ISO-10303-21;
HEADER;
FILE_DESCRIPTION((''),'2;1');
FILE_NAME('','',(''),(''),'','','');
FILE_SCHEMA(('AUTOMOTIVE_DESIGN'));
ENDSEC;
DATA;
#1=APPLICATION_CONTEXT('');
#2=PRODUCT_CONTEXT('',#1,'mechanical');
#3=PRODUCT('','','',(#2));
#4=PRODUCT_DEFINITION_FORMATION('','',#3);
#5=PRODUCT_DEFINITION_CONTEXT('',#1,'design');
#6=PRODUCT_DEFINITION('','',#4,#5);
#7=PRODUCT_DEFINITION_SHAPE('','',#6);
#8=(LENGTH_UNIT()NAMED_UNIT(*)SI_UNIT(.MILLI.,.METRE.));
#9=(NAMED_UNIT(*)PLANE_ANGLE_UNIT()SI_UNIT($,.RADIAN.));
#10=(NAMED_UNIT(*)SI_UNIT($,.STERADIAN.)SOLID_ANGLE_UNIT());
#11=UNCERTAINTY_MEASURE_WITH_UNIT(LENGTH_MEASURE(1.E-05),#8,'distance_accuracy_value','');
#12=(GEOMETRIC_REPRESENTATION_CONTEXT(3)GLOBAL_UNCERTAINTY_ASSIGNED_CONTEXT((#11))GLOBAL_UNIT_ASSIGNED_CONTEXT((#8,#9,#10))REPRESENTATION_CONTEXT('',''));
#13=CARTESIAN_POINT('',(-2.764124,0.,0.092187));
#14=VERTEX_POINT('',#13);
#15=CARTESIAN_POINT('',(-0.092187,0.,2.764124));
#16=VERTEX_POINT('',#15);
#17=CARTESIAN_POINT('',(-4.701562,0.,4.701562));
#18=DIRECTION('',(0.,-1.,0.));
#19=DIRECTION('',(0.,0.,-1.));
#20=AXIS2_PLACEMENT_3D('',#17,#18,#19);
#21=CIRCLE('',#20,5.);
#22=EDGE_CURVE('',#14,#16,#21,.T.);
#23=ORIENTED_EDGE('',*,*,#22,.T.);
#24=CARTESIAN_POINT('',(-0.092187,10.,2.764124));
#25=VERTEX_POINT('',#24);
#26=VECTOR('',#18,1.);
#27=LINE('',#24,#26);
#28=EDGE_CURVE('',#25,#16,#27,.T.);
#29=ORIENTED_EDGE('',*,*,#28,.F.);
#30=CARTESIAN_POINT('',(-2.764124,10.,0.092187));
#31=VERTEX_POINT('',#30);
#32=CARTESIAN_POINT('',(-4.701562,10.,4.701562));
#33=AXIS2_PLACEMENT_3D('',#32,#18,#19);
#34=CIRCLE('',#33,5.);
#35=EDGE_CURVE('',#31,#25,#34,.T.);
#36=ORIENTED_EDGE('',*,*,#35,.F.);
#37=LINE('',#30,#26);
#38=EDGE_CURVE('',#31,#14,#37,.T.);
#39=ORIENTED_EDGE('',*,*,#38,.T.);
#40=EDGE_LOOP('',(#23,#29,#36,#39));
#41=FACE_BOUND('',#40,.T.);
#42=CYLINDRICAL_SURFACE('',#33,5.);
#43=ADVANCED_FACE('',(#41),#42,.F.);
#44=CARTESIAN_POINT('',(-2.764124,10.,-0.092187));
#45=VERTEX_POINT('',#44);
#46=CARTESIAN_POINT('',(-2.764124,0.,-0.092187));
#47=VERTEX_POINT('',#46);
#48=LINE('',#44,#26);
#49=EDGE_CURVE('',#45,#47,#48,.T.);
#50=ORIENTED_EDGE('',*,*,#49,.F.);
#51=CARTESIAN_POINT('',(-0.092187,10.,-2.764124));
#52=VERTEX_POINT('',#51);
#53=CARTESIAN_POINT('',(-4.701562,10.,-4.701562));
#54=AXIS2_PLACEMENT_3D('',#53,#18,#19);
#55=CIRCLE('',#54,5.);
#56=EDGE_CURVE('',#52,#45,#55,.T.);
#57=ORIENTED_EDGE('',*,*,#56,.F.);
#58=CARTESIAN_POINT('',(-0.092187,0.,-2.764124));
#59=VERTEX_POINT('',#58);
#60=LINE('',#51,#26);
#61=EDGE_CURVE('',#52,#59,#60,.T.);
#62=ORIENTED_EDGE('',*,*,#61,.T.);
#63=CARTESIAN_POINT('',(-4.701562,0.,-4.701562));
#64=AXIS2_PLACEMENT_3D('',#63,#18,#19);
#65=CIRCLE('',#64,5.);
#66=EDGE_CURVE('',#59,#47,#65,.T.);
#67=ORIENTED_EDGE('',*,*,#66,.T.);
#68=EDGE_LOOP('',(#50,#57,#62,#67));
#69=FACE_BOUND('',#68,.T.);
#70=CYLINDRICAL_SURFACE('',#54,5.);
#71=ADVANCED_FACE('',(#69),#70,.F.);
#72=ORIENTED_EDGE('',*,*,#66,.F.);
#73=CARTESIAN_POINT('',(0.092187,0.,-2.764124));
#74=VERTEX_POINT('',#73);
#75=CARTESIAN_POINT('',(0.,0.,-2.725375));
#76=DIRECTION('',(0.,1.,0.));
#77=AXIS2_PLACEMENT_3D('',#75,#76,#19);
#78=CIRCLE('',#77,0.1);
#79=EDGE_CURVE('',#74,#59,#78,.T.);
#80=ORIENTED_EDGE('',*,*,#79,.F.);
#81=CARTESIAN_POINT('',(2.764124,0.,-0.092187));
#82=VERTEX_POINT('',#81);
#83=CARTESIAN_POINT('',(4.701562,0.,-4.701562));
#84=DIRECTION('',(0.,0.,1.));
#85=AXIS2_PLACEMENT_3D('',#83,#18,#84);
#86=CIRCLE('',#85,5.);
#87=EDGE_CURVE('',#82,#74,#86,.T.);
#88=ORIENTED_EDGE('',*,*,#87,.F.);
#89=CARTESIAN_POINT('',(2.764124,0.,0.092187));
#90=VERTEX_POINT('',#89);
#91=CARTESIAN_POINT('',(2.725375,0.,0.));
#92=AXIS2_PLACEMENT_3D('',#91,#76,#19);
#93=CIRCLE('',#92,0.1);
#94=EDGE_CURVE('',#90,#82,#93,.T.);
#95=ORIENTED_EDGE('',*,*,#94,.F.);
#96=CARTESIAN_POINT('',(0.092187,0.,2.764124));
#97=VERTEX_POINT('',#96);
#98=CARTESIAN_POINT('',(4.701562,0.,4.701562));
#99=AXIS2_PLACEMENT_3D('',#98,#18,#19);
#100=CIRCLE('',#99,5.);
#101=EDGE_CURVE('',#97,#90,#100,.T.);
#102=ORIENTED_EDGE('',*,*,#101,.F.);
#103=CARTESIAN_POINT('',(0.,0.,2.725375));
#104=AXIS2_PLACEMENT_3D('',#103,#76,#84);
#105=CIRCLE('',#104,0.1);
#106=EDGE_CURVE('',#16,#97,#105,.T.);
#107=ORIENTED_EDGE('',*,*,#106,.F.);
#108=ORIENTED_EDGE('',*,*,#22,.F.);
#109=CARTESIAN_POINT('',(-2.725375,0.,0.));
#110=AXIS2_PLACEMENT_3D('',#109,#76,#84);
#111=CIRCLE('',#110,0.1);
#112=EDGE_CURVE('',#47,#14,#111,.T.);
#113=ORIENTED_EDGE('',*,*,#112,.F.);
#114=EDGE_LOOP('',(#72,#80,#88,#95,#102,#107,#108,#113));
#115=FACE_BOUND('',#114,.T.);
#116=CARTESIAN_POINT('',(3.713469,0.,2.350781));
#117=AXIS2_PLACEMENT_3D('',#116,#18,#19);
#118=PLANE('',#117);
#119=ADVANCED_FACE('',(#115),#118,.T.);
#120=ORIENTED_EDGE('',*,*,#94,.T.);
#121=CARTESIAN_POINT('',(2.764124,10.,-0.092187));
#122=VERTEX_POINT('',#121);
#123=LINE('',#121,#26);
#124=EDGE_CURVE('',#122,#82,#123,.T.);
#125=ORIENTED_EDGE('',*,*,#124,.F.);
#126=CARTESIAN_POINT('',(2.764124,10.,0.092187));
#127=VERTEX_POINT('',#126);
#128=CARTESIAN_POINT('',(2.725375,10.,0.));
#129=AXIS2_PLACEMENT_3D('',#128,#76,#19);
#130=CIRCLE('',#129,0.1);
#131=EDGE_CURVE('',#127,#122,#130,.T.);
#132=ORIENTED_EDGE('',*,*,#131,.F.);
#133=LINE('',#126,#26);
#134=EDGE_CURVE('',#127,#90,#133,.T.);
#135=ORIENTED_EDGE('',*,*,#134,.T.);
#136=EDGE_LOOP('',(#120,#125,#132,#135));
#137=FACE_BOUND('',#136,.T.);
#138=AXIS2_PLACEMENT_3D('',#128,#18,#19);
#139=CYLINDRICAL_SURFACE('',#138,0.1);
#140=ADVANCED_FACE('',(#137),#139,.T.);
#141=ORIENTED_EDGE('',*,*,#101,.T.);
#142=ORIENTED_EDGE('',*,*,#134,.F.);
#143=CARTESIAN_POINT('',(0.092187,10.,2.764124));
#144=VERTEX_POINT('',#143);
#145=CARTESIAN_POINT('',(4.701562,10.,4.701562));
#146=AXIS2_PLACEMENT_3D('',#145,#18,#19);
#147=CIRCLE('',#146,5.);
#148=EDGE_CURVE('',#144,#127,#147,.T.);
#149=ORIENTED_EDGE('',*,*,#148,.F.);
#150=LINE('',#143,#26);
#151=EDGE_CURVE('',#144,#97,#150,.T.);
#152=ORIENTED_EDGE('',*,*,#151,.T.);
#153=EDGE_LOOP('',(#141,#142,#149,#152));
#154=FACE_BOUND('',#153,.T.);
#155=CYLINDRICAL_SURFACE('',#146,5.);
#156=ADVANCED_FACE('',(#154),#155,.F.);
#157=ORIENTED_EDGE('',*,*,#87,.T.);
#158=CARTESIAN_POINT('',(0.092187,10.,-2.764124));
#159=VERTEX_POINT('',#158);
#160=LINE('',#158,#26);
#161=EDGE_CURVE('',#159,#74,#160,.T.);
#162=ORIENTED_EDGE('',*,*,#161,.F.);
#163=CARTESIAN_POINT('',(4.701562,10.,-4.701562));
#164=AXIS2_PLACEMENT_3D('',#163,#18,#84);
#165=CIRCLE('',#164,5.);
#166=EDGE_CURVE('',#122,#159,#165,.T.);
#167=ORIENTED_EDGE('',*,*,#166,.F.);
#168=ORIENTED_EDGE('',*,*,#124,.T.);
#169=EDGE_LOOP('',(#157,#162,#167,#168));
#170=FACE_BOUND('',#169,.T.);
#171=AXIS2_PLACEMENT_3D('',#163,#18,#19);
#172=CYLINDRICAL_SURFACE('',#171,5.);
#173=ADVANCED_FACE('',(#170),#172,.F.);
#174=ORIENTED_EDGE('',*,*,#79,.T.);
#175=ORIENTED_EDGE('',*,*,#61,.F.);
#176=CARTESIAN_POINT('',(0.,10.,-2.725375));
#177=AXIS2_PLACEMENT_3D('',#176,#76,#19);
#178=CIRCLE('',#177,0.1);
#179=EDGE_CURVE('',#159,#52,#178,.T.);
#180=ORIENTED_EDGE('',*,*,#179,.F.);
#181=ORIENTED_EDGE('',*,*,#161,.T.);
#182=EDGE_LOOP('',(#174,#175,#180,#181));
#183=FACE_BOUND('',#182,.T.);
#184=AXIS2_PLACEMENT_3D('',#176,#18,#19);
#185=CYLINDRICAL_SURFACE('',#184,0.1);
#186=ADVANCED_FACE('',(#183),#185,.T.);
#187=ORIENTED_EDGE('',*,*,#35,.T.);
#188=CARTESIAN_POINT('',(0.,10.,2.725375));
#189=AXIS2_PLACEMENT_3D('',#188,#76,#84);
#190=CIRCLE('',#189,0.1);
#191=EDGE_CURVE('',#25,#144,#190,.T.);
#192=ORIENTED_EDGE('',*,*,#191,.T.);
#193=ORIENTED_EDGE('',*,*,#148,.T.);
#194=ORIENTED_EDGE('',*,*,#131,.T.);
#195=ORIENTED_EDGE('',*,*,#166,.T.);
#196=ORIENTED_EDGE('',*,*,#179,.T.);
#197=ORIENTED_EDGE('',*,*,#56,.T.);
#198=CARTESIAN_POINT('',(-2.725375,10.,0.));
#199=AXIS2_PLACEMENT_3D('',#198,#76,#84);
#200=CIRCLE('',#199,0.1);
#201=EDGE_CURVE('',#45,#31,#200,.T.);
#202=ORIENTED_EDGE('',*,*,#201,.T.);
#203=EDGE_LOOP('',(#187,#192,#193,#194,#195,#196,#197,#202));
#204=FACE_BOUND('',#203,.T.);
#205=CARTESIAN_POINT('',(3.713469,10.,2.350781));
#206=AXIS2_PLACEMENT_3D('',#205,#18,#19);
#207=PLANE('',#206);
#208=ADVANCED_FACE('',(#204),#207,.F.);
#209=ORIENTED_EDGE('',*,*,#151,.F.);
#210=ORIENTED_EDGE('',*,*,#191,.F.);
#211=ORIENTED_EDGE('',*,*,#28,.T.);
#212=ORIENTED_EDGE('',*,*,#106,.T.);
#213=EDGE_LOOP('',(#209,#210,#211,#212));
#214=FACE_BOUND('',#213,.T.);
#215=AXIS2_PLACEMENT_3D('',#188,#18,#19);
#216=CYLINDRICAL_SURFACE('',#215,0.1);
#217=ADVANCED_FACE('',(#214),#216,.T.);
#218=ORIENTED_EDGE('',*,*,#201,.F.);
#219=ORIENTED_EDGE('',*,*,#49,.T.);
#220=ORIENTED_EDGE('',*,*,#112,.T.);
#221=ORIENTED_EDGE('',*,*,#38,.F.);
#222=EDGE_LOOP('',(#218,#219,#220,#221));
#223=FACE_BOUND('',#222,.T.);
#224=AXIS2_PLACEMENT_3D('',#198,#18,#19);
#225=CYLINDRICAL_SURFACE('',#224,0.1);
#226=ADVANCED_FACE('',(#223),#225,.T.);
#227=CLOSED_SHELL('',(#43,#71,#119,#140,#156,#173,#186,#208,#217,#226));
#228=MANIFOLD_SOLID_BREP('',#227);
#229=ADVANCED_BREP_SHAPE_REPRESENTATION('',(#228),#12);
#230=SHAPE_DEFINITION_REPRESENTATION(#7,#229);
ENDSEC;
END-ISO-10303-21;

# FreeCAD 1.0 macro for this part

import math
import FreeCAD as App
import Part
import Sketcher
from FreeCAD import Vector

doc = App.newDocument("Part")
body = doc.addObject("PartDesign::Body", "Body")

sketch1 = doc.addObject("Sketcher::SketchObject", "Sketch")
body.addObject(sketch1)
sketch1.AttachmentSupport = (doc.XZ_Plane, [""])
sketch1.MapMode = "FlatFace"
sketch1.addGeometry([
    Part.ArcOfCircle(Part.Circle(Vector(-4.7, -4.7, 0), Vector(0, 0, 1), 5), math.radians(23), math.radians(67)),
    Part.ArcOfCircle(Part.Circle(Vector(-2.73, 0, 0), Vector(0, 0, 1), 0.1), math.radians(113), math.radians(247)),
    Part.ArcOfCircle(Part.Circle(Vector(-4.7, 4.7, 0), Vector(0, 0, 1), 5), math.radians(-67), math.radians(-23)),
    Part.ArcOfCircle(Part.Circle(Vector(0, 2.73, 0), Vector(0, 0, 1), 0.1), math.radians(23), math.radians(157)),
    Part.ArcOfCircle(Part.Circle(Vector(4.7, 4.7, 0), Vector(0, 0, 1), 5), math.radians(-157), math.radians(-113)),
    Part.ArcOfCircle(Part.Circle(Vector(2.73, 0, 0), Vector(0, 0, 1), 0.1), math.radians(-67), math.radians(67)),
    Part.ArcOfCircle(Part.Circle(Vector(4.7, -4.7, 0), Vector(0, 0, 1), 5), math.radians(113), math.radians(157)),
    Part.ArcOfCircle(Part.Circle(Vector(0, -2.73, 0), Vector(0, 0, 1), 0.1), math.radians(-157), math.radians(-23)),
], False)
sketch1.addConstraint([
    Sketcher.Constraint("Tangent", 0, 2, 1, 2),
    Sketcher.Constraint("Tangent", 1, 1, 2, 1),
    Sketcher.Constraint("Tangent", 2, 2, 3, 2),
    Sketcher.Constraint("Tangent", 3, 1, 4, 1),
    Sketcher.Constraint("Tangent", 4, 2, 5, 2),
    Sketcher.Constraint("Tangent", 5, 1, 6, 1),
    Sketcher.Constraint("Tangent", 6, 2, 7, 2),
    Sketcher.Constraint("Tangent", 7, 1, 0, 1),
    Sketcher.Constraint("Equal", 0, 2),
    Sketcher.Constraint("Equal", 1, 3),
    Sketcher.Constraint("Equal", 2, 4),
    Sketcher.Constraint("Equal", 3, 5),
    Sketcher.Constraint("Equal", 4, 6),
    Sketcher.Constraint("Equal", 5, 7),
    Sketcher.Constraint("Symmetric", 0, 3, 4, 3, -1, 1),
    Sketcher.Constraint("Symmetric", 2, 3, 6, 3, -1, 1),
    Sketcher.Constraint("Symmetric", 2, 3, 4, 3, -2),
    Sketcher.Constraint("Radius", 0, 5.0),
    Sketcher.Constraint("Radius", 1, 0.1),
    Sketcher.Constraint("DistanceX", 1, 3, 5, 3, 5.450751),
    Sketcher.Constraint("DistanceY", 7, 3, 3, 3, 5.450751),
])
pad1 = doc.addObject("PartDesign::Pad", "Pad")
body.addObject(pad1)
pad1.Profile = sketch1
pad1.Length = 10
pad1.Reversed = True

doc.recompute()
